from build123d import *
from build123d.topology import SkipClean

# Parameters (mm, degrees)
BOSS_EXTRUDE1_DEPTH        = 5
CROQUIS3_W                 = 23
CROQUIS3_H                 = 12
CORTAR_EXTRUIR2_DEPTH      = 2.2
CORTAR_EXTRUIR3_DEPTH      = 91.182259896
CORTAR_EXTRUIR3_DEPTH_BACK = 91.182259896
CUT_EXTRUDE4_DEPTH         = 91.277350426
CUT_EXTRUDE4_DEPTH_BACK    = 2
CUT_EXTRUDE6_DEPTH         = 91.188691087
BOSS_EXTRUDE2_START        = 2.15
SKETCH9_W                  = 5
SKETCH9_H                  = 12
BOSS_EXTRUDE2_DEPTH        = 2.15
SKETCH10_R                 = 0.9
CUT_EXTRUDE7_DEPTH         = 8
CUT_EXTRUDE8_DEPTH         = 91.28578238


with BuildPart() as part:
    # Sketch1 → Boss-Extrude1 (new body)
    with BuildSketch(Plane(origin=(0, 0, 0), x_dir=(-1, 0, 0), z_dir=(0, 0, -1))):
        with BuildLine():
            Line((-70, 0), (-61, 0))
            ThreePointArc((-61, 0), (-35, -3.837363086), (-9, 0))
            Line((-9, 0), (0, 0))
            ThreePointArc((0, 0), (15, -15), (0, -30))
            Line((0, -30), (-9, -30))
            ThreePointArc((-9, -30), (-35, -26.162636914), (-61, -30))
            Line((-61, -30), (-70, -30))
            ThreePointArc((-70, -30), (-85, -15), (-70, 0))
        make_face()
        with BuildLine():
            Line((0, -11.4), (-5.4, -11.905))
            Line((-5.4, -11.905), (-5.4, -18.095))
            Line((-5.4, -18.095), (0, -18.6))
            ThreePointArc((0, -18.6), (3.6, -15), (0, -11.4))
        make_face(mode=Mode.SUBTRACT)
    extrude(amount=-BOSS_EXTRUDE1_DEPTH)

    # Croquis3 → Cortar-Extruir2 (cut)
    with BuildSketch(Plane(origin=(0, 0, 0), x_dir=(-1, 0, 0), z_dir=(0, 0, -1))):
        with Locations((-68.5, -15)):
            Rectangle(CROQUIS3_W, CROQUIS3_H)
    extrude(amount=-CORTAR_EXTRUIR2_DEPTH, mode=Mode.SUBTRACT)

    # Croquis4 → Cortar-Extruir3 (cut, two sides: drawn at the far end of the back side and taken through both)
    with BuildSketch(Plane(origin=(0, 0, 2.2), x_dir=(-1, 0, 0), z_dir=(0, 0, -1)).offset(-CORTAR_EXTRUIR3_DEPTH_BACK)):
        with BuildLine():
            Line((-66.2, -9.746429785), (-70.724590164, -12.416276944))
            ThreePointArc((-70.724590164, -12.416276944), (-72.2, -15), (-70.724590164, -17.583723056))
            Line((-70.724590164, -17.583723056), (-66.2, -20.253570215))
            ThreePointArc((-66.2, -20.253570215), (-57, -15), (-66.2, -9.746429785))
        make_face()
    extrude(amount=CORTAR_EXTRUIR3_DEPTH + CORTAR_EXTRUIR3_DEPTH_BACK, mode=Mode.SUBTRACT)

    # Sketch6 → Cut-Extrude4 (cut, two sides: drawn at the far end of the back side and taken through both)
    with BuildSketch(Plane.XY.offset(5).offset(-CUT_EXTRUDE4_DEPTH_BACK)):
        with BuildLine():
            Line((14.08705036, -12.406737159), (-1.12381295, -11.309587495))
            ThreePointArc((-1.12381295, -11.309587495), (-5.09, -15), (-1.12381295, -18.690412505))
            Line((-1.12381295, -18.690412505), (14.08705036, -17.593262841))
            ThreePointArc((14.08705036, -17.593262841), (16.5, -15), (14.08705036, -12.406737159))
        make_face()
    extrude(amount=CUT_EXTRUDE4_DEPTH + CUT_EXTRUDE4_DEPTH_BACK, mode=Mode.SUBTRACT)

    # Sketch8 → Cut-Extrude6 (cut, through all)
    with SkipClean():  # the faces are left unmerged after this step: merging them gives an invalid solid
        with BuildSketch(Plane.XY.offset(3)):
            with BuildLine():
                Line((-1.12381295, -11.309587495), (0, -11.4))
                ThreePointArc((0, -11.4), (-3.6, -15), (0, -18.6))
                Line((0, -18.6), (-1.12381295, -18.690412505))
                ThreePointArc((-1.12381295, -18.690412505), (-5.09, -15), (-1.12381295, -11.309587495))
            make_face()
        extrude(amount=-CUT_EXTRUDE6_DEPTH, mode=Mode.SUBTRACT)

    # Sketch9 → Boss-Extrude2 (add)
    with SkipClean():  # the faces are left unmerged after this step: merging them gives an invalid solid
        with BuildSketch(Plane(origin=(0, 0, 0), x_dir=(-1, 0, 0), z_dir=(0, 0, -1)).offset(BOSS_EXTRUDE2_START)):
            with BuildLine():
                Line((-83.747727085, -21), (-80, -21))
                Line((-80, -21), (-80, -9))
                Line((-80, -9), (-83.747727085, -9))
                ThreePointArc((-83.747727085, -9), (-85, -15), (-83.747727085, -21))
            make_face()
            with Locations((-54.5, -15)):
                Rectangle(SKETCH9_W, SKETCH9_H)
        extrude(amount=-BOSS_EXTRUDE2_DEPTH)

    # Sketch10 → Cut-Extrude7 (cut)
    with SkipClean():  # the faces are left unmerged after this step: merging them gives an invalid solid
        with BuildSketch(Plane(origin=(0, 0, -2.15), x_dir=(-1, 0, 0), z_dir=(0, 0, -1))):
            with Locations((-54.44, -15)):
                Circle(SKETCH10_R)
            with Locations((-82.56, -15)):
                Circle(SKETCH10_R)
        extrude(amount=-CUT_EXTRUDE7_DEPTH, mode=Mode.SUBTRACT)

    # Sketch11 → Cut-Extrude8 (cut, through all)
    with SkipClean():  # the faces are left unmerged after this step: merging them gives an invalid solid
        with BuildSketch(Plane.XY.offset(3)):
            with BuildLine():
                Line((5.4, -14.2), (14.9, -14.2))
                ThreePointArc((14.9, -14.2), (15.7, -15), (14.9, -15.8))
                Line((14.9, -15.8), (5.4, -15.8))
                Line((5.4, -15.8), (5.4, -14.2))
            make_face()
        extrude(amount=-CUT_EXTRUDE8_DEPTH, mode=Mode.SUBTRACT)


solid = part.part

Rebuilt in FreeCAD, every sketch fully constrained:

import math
import FreeCAD as App
import Part
import Sketcher
from FreeCAD import Vector

doc = App.newDocument("Part")
body = doc.addObject("PartDesign::Body", "Body")

sketch1 = doc.addObject("Sketcher::SketchObject", "Sketch")
body.addObject(sketch1)
sketch1.AttachmentSupport = (doc.XY_Plane, [""])
sketch1.MapMode = "FlatFace"
sketch1.addGeometry([
    Part.LineSegment(Vector(61, 0, 0), Vector(70, 0, 0)),
    Part.ArcOfCircle(Part.Circle(Vector(70, -15, 0), Vector(0, 0, 1), 15), math.radians(-90), math.radians(90)),
    Part.LineSegment(Vector(70, -30, 0), Vector(61, -30, 0)),
    Part.ArcOfCircle(Part.Circle(Vector(35, -116.162637, 0), Vector(0, 0, 1), 90), math.radians(73.208553), math.radians(106.791447)),
    Part.LineSegment(Vector(9, -30, 0), Vector(0, -30, 0)),
    Part.ArcOfCircle(Part.Circle(Vector(0, -15, 0), Vector(0, 0, 1), 15), math.radians(90), math.radians(270)),
    Part.LineSegment(Vector(0, 0, 0), Vector(9, 0, 0)),
    Part.ArcOfCircle(Part.Circle(Vector(35, 86.162637, 0), Vector(0, 0, 1), 90), math.radians(-106.791447), math.radians(-73.208553)),
    Part.ArcOfCircle(Part.Circle(Vector(0, -15, 0), Vector(0, 0, 1), 3.6), math.radians(90), math.radians(270)),
    Part.LineSegment(Vector(0, -18.6, 0), Vector(5.4, -18.095, 0)),
    Part.LineSegment(Vector(5.4, -18.095, 0), Vector(5.4, -11.905, 0)),
    Part.LineSegment(Vector(5.4, -11.905, 0), Vector(0, -11.4, 0)),
], False)
sketch1.addConstraint([
    Sketcher.Constraint("Tangent", 0, 2, 1, 2),
    Sketcher.Constraint("Tangent", 1, 1, 2, 1),
    Sketcher.Constraint("Coincident", 2, 2, 3, 1),
    Sketcher.Constraint("Coincident", 3, 2, 4, 1),
    Sketcher.Constraint("Tangent", 4, 2, 5, 2),
    Sketcher.Constraint("Tangent", 5, 1, 6, 1),
    Sketcher.Constraint("Coincident", 6, 2, 7, 1),
    Sketcher.Constraint("Coincident", 7, 2, 0, 1),
    Sketcher.Constraint("Coincident", 8, 2, 9, 1),
    Sketcher.Constraint("Coincident", 9, 2, 10, 1),
    Sketcher.Constraint("Coincident", 10, 2, 11, 1),
    Sketcher.Constraint("Coincident", 11, 2, 8, 1),
    Sketcher.Constraint("Horizontal", 0),
    Sketcher.Constraint("Horizontal", 2),
    Sketcher.Constraint("Horizontal", 4),
    Sketcher.Constraint("Horizontal", 6),
    Sketcher.Constraint("Vertical", 10),
    Sketcher.Constraint("Coincident", 5, 1, -1, 1),
    Sketcher.Constraint("Coincident", 8, 3, 5, 3),
    Sketcher.Constraint("Equal", 1, 5),
    Sketcher.Constraint("Equal", 3, 7),
    Sketcher.Constraint("PointOnObject", 0, 2, -1),
    Sketcher.Constraint("PointOnObject", 8, 2, -2),
    Sketcher.Constraint("PointOnObject", 11, 2, -2),
    Sketcher.Constraint("Vertical", 3, 3, 7, 3),
    Sketcher.Constraint("Vertical", 3, 2, 6, 2),
    Sketcher.Constraint("Equal", 2, 4),
    Sketcher.Constraint("Equal", 9, 11),
    Sketcher.Constraint("Radius", 1, 15.0),
    Sketcher.Constraint("Radius", 3, 90.0),
    Sketcher.Constraint("Radius", 8, 3.6),
    Sketcher.Constraint("DistanceX", 0, 1, 0, 2, 9.0),
    Sketcher.Constraint("DistanceX", -1, 1, 1, 3, 70.0),
    Sketcher.Constraint("DistanceY", 10, 1, 10, 2, 6.19),
    Sketcher.Constraint("DistanceX", -1, 1, 9, 2, 5.4),
])
pad1 = doc.addObject("PartDesign::Pad", "Pad")
body.addObject(pad1)
pad1.Profile = sketch1
pad1.Length = 5

sketch2 = doc.addObject("Sketcher::SketchObject", "Sketch001")
body.addObject(sketch2)
sketch2.AttachmentSupport = (doc.XY_Plane, [""])
sketch2.MapMode = "FlatFace"
sketch2.addGeometry([
    Part.LineSegment(Vector(80, -9, 0), Vector(80, -21, 0)),
    Part.LineSegment(Vector(80, -21, 0), Vector(57, -21, 0)),
    Part.LineSegment(Vector(57, -21, 0), Vector(57, -9, 0)),
    Part.LineSegment(Vector(57, -9, 0), Vector(80, -9, 0)),
], False)
sketch2.addConstraint([
    Sketcher.Constraint("Coincident", 0, 2, 1, 1),
    Sketcher.Constraint("Coincident", 1, 2, 2, 1),
    Sketcher.Constraint("Coincident", 2, 2, 3, 1),
    Sketcher.Constraint("Coincident", 3, 2, 0, 1),
    Sketcher.Constraint("Vertical", 0),
    Sketcher.Constraint("Horizontal", 1),
    Sketcher.Constraint("Vertical", 2),
    Sketcher.Constraint("Horizontal", 3),
    Sketcher.Constraint("DistanceX", 1, 2, 1, 1, 23.0),
    Sketcher.Constraint("DistanceY", 0, 2, 0, 1, 12.0),
    Sketcher.Constraint("DistanceX", -1, 1, 0, 2, 80.0),
    Sketcher.Constraint("DistanceY", 0, 2, -1, 1, 21.0),
])
pocket1 = doc.addObject("PartDesign::Pocket", "Pocket")
body.addObject(pocket1)
pocket1.Profile = sketch2
pocket1.Length = 2.2
pocket1.Reversed = True

sketch3 = doc.addObject("Sketcher::SketchObject", "Sketch002")
body.addObject(sketch3)
sketch3.AttachmentSupport = (doc.XY_Plane, [""])
sketch3.MapMode = "FlatFace"
sketch3.AttachmentOffset = App.Placement(Vector(0, 0, 2.2), App.Rotation())
sketch3.addGeometry([
    Part.LineSegment(Vector(66.2, -9.74643, 0), Vector(70.72459, -12.416277, 0)),
    Part.ArcOfCircle(Part.Circle(Vector(69.2, -15, 0), Vector(0, 0, 1), 3), math.radians(-59.456211), math.radians(59.456211)),
    Part.LineSegment(Vector(70.72459, -17.583723, 0), Vector(66.2, -20.25357, 0)),
    Part.ArcOfCircle(Part.Circle(Vector(63.1, -15, 0), Vector(0, 0, 1), 6.1), math.radians(59.456211), math.radians(300.543789)),
], False)
sketch3.addConstraint([
    Sketcher.Constraint("Tangent", 0, 2, 1, 2),
    Sketcher.Constraint("Tangent", 1, 1, 2, 1),
    Sketcher.Constraint("Tangent", 2, 2, 3, 2),
    Sketcher.Constraint("Tangent", 3, 1, 0, 1),
    Sketcher.Constraint("Horizontal", 1, 3, 3, 3),
    Sketcher.Constraint("Radius", 1, 3.0),
    Sketcher.Constraint("Radius", 3, 6.1),
    Sketcher.Constraint("DistanceY", 1, 3, -1, 1, 15.0),
    Sketcher.Constraint("DistanceX", 2, 2, 1, 3, 3.0),
    Sketcher.Constraint("DistanceX", -1, 1, 1, 3, 69.2),
])
pocket2 = doc.addObject("PartDesign::Pocket", "Pocket001")
body.addObject(pocket2)
pocket2.Profile = sketch3
pocket2.Type = "ThroughAll"
pocket2.Midplane = True

sketch4 = doc.addObject("Sketcher::SketchObject", "Sketch003")
body.addObject(sketch4)
sketch4.AttachmentSupport = (doc.XY_Plane, [""])
sketch4.MapMode = "FlatFace"
sketch4.AttachmentOffset = App.Placement(Vector(0, 0, 5), App.Rotation())
sketch4.addGeometry([
    Part.LineSegment(Vector(14.08705, -12.406737, 0), Vector(-1.123813, -11.309587, 0)),
    Part.ArcOfCircle(Part.Circle(Vector(-1.39, -15, 0), Vector(0, 0, 1), 3.7), math.radians(85.874437), math.radians(274.125563)),
    Part.LineSegment(Vector(-1.123813, -18.690413, 0), Vector(14.08705, -17.593263, 0)),
    Part.ArcOfCircle(Part.Circle(Vector(13.9, -15, 0), Vector(0, 0, 1), 2.6), math.radians(-85.874437), math.radians(85.874437)),
], False)
sketch4.addConstraint([
    Sketcher.Constraint("Tangent", 0, 2, 1, 1),
    Sketcher.Constraint("Tangent", 1, 2, 2, 1),
    Sketcher.Constraint("Tangent", 2, 2, 3, 1),
    Sketcher.Constraint("Tangent", 3, 2, 0, 1),
    Sketcher.Constraint("Horizontal", 1, 3, 3, 3),
    Sketcher.Constraint("Radius", 1, 3.7),
    Sketcher.Constraint("Radius", 3, 2.6),
    Sketcher.Constraint("DistanceY", 1, 3, -1, 1, 15.0),
    Sketcher.Constraint("DistanceX", -1, 1, 3, 3, 13.9),
    Sketcher.Constraint("DistanceX", 1, 3, -1, 1, 1.39),
])
pocket3 = doc.addObject("PartDesign::Pocket", "Pocket002")
body.addObject(pocket3)
pocket3.Profile = sketch4
pocket3.Type = "TwoLengths"
pocket3.Length = 91.27735
pocket3.Length2 = 2
pocket3.Reversed = True

sketch5 = doc.addObject("Sketcher::SketchObject", "Sketch004")
body.addObject(sketch5)
sketch5.AttachmentSupport = (doc.XY_Plane, [""])
sketch5.MapMode = "FlatFace"
sketch5.AttachmentOffset = App.Placement(Vector(0, 0, 3), App.Rotation())
sketch5.addGeometry([
    Part.LineSegment(Vector(0, -11.4, 0), Vector(-1.123813, -11.309587, 0)),
    Part.ArcOfCircle(Part.Circle(Vector(-1.39, -15, 0), Vector(0, 0, 1), 3.7), math.radians(85.874437), math.radians(274.125563)),
    Part.LineSegment(Vector(-1.123813, -18.690413, 0), Vector(0, -18.6, 0)),
    Part.ArcOfCircle(Part.Circle(Vector(0, -15, 0), Vector(0, 0, 1), 3.6), math.radians(90), math.radians(270)),
], False)
sketch5.addConstraint([
    Sketcher.Constraint("Coincident", 0, 2, 1, 1),
    Sketcher.Constraint("Coincident", 1, 2, 2, 1),
    Sketcher.Constraint("Coincident", 2, 2, 3, 2),
    Sketcher.Constraint("Coincident", 3, 1, 0, 1),
    Sketcher.Constraint("PointOnObject", 3, 3, -2),
    Sketcher.Constraint("PointOnObject", 2, 2, -2),
    Sketcher.Constraint("PointOnObject", 3, 1, -2),
    Sketcher.Constraint("Horizontal", 1, 3, 3, 3),
    Sketcher.Constraint("Vertical", 0, 2, 1, 2),
    Sketcher.Constraint("Radius", 1, 3.7),
    Sketcher.Constraint("Radius", 3, 3.6),
    Sketcher.Constraint("DistanceY", 1, 3, -1, 1, 15.0),
    Sketcher.Constraint("DistanceX", 1, 3, -1, 1, 1.39),
    Sketcher.Constraint("Distance", 0, 1.127444),
])
pocket4 = doc.addObject("PartDesign::Pocket", "Pocket003")
body.addObject(pocket4)
pocket4.Profile = sketch5
pocket4.Type = "ThroughAll"

sketch6 = doc.addObject("Sketcher::SketchObject", "Sketch005")
body.addObject(sketch6)
sketch6.AttachmentSupport = (doc.XY_Plane, [""])
sketch6.MapMode = "FlatFace"
sketch6.AttachmentOffset = App.Placement(Vector(0, 0, -2.15), App.Rotation())
sketch6.addGeometry([
    Part.LineSegment(Vector(83.747727, -21, 0), Vector(80, -21, 0)),
    Part.LineSegment(Vector(80, -21, 0), Vector(80, -9, 0)),
    Part.LineSegment(Vector(80, -9, 0), Vector(83.747727, -9, 0)),
    Part.ArcOfCircle(Part.Circle(Vector(70, -15, 0), Vector(0, 0, 1), 15), math.radians(-23.578178), math.radians(23.578178)),
    Part.LineSegment(Vector(57, -9, 0), Vector(57, -21, 0)),
    Part.LineSegment(Vector(57, -21, 0), Vector(52, -21, 0)),
    Part.LineSegment(Vector(52, -21, 0), Vector(52, -9, 0)),
    Part.LineSegment(Vector(52, -9, 0), Vector(57, -9, 0)),
], False)
sketch6.addConstraint([
    Sketcher.Constraint("Coincident", 0, 2, 1, 1),
    Sketcher.Constraint("Coincident", 1, 2, 2, 1),
    Sketcher.Constraint("Coincident", 2, 2, 3, 2),
    Sketcher.Constraint("Coincident", 3, 1, 0, 1),
    Sketcher.Constraint("Coincident", 4, 2, 5, 1),
    Sketcher.Constraint("Coincident", 5, 2, 6, 1),
    Sketcher.Constraint("Coincident", 6, 2, 7, 1),
    Sketcher.Constraint("Coincident", 7, 2, 4, 1),
    Sketcher.Constraint("Horizontal", 0),
    Sketcher.Constraint("Vertical", 1),
    Sketcher.Constraint("Horizontal", 2),
    Sketcher.Constraint("Vertical", 4),
    Sketcher.Constraint("Horizontal", 5),
    Sketcher.Constraint("Vertical", 6),
    Sketcher.Constraint("Horizontal", 7),
    Sketcher.Constraint("Horizontal", 3, 1, 4, 2),
    Sketcher.Constraint("Horizontal", 2, 2, 6, 2),
    Sketcher.Constraint("Vertical", 2, 2, 3, 1),
    Sketcher.Constraint("Radius", 3, 15.0),
    Sketcher.Constraint("DistanceX", 5, 2, 5, 1, 5.0),
    Sketcher.Constraint("DistanceY", 1, 1, 1, 2, 12.0),
    Sketcher.Constraint("DistanceX", -1, 1, 3, 3, 70.0),
    Sketcher.Constraint("DistanceY", 3, 3, -1, 1, 15.0),
    Sketcher.Constraint("DistanceX", -1, 1, 0, 2, 80.0),
    Sketcher.Constraint("DistanceX", -1, 1, 4, 2, 57.0),
])
pad2 = doc.addObject("PartDesign::Pad", "Pad001")
body.addObject(pad2)
pad2.Profile = sketch6
pad2.Length = 2.15

sketch7 = doc.addObject("Sketcher::SketchObject", "Sketch006")
body.addObject(sketch7)
sketch7.AttachmentSupport = (doc.XY_Plane, [""])
sketch7.MapMode = "FlatFace"
sketch7.AttachmentOffset = App.Placement(Vector(0, 0, -2.15), App.Rotation())
sketch7.addGeometry([
    Part.Circle(Vector(54.44, -15, 0), Vector(0, 0, 1), 0.9),
    Part.Circle(Vector(82.56, -15, 0), Vector(0, 0, 1), 0.9),
], False)
sketch7.addConstraint([
    Sketcher.Constraint("Equal", 0, 1),
    Sketcher.Constraint("Horizontal", 0, 3, 1, 3),
    Sketcher.Constraint("Diameter", 0, 1.8),
    Sketcher.Constraint("DistanceY", 0, 3, -1, 1, 15.0),
    Sketcher.Constraint("DistanceX", -1, 1, 0, 3, 54.44),
    Sketcher.Constraint("DistanceX", -1, 1, 1, 3, 82.56),
])
pocket5 = doc.addObject("PartDesign::Pocket", "Pocket004")
body.addObject(pocket5)
pocket5.Profile = sketch7
pocket5.Length = 8
pocket5.Reversed = True

sketch8 = doc.addObject("Sketcher::SketchObject", "Sketch007")
body.addObject(sketch8)
sketch8.AttachmentSupport = (doc.XY_Plane, [""])
sketch8.MapMode = "FlatFace"
sketch8.AttachmentOffset = App.Placement(Vector(0, 0, 3), App.Rotation())
sketch8.addGeometry([
    Part.LineSegment(Vector(14.9, -14.2, 0), Vector(5.4, -14.2, 0)),
    Part.LineSegment(Vector(5.4, -14.2, 0), Vector(5.4, -15.8, 0)),
    Part.LineSegment(Vector(5.4, -15.8, 0), Vector(14.9, -15.8, 0)),
    Part.ArcOfCircle(Part.Circle(Vector(14.9, -15, 0), Vector(0, 0, 1), 0.8), math.radians(-90), math.radians(90)),
], False)
sketch8.addConstraint([
    Sketcher.Constraint("Coincident", 0, 2, 1, 1),
    Sketcher.Constraint("Coincident", 1, 2, 2, 1),
    Sketcher.Constraint("Tangent", 2, 2, 3, 1),
    Sketcher.Constraint("Tangent", 3, 2, 0, 1),
    Sketcher.Constraint("Horizontal", 0),
    Sketcher.Constraint("Vertical", 1),
    Sketcher.Constraint("Horizontal", 2),
    Sketcher.Constraint("Radius", 3, 0.8),
    Sketcher.Constraint("DistanceX", 0, 2, 0, 1, 9.5),
    Sketcher.Constraint("DistanceY", 3, 3, -1, 1, 15.0),
    Sketcher.Constraint("DistanceX", -1, 1, 3, 3, 14.9),
])
pocket6 = doc.addObject("PartDesign::Pocket", "Pocket005")
body.addObject(pocket6)
pocket6.Profile = sketch8
pocket6.Type = "ThroughAll"

doc.recompute()
